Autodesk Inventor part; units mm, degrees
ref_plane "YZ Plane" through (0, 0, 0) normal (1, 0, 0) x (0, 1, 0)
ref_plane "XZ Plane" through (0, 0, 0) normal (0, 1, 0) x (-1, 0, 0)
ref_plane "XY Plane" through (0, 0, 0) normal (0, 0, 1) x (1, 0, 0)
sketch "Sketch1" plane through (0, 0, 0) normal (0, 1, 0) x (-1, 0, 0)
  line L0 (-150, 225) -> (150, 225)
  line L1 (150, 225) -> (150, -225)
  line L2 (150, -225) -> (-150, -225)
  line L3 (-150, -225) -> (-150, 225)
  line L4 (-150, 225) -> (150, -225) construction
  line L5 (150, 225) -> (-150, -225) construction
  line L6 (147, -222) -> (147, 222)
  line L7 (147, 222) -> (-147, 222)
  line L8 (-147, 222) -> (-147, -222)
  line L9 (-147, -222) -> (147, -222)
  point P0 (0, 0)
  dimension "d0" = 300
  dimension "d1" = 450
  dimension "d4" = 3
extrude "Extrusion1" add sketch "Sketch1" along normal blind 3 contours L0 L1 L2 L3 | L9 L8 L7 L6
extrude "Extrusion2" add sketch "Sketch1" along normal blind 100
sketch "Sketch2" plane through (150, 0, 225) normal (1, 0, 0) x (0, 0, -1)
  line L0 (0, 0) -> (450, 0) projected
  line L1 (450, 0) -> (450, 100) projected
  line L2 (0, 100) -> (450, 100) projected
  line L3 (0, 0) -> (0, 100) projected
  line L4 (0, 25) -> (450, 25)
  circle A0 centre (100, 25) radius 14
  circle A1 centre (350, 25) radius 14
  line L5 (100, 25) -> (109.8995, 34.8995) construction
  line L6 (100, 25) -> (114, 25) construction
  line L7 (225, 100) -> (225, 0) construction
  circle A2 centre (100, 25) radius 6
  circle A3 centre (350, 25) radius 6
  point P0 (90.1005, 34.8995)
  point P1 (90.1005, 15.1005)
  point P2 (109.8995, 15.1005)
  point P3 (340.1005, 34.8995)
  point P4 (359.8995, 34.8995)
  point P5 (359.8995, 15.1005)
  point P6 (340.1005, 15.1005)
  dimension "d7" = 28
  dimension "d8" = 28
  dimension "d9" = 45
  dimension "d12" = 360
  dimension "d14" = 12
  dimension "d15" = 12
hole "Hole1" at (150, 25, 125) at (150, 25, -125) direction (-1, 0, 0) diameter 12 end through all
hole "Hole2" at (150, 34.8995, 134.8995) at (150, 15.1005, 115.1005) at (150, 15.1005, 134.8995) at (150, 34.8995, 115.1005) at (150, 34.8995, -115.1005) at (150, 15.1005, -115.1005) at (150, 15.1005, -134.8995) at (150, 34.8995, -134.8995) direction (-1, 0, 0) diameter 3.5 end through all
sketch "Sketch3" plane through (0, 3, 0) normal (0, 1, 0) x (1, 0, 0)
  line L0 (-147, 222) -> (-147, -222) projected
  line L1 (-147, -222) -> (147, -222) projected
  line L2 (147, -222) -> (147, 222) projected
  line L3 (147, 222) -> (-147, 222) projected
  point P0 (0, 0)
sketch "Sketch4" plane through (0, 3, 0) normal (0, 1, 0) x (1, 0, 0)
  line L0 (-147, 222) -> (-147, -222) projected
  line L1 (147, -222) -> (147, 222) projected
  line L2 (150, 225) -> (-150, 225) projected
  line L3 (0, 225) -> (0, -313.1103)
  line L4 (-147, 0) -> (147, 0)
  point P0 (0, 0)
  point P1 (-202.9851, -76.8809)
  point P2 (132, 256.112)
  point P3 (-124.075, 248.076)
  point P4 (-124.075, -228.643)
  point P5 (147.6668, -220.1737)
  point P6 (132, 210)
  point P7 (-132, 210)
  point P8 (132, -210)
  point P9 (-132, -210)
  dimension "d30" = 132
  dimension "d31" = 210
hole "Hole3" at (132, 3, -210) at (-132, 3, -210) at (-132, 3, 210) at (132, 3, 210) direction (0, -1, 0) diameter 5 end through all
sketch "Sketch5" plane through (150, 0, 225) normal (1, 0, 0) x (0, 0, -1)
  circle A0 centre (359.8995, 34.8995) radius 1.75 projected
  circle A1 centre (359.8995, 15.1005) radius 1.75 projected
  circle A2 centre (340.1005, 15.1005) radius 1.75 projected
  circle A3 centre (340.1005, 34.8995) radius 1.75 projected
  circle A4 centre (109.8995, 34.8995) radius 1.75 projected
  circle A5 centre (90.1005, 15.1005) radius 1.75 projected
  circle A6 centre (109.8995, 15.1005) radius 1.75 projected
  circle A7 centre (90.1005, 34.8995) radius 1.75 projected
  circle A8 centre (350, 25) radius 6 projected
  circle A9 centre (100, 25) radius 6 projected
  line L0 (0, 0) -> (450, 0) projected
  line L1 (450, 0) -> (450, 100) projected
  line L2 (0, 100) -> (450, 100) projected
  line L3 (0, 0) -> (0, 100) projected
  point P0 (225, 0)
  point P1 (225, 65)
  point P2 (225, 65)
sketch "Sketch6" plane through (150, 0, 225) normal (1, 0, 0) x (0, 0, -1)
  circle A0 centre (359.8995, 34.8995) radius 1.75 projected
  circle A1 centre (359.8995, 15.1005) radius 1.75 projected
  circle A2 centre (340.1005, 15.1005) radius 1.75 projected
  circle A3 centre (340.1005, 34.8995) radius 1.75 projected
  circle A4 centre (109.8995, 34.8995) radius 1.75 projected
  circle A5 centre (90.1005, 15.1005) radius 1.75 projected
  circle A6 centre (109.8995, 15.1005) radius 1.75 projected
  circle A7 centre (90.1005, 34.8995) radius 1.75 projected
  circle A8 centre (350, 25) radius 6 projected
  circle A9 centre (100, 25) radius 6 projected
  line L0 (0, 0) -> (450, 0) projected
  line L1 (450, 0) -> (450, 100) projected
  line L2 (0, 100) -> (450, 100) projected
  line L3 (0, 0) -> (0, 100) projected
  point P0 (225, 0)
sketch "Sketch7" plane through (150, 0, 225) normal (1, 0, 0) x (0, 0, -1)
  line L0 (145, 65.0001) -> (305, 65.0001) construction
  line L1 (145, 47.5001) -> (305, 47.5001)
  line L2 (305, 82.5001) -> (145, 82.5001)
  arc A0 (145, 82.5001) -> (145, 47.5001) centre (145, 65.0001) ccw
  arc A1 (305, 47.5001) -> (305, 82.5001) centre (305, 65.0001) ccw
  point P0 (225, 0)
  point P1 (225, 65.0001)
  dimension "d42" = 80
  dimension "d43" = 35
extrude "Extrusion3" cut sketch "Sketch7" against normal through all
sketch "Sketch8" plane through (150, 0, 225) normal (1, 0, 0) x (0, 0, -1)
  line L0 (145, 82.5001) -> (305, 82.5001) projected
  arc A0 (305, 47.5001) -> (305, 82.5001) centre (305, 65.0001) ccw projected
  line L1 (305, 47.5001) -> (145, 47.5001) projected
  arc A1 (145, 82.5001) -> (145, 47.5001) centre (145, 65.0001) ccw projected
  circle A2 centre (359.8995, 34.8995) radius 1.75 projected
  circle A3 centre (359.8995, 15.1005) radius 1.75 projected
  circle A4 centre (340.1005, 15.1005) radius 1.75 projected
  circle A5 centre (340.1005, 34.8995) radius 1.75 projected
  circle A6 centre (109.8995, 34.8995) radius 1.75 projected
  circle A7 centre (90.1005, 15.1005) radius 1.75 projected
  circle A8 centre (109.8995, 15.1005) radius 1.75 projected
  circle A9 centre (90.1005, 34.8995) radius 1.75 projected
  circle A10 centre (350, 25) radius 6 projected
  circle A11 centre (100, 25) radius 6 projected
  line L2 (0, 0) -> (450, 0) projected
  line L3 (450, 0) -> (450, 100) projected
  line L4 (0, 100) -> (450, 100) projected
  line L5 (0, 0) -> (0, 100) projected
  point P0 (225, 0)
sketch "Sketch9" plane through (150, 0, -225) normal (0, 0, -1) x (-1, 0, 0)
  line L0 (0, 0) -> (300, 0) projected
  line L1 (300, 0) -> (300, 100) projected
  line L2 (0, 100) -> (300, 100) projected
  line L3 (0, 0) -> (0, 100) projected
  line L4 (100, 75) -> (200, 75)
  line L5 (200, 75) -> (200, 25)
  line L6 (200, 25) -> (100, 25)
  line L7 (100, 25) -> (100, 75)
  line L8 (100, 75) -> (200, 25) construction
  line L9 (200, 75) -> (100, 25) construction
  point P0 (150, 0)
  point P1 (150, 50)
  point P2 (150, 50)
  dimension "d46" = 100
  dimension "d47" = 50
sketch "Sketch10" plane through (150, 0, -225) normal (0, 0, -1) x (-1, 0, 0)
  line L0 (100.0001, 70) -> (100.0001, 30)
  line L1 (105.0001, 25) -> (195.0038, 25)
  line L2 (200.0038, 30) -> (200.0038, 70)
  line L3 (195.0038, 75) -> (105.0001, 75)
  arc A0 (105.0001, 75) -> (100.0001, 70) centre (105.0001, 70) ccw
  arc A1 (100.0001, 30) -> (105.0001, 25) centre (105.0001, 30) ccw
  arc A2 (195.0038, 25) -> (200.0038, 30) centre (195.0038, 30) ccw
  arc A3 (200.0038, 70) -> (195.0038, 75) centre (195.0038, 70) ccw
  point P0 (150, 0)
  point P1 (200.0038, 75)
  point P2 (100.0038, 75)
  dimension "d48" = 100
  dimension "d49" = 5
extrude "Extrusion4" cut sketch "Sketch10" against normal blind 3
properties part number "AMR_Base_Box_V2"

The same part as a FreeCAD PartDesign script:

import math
import FreeCAD as App
import Part
import Sketcher

V = App.Vector

doc = App.newDocument("Part")
body = doc.addObject("PartDesign::Body", "Body")

# Sketch on XZ plane
sketch1 = body.newObject("Sketcher::SketchObject", "Sketch")
sketch1.AttachmentSupport = (doc.getObject("XZ_Plane"), [""])
sketch1.MapMode = "FlatFace"
sketch1.addGeometry([
    Part.LineSegment(V(-150, 225, 0), V(150, 225, 0)),
    Part.LineSegment(V(150, 225, 0), V(150, -225, 0)),
    Part.LineSegment(V(150, -225, 0), V(-150, -225, 0)),
    Part.LineSegment(V(-150, -225, 0), V(-150, 225, 0)),
], False)
sketch1.addConstraint([
    Sketcher.Constraint("Coincident", 0, 2, 1, 1),
    Sketcher.Constraint("Coincident", 1, 2, 2, 1),
    Sketcher.Constraint("Coincident", 2, 2, 3, 1),
    Sketcher.Constraint("Coincident", 3, 2, 0, 1),
    Sketcher.Constraint("Horizontal", 0),
    Sketcher.Constraint("Vertical", 1),
    Sketcher.Constraint("Horizontal", 2),
    Sketcher.Constraint("Vertical", 3),
    Sketcher.Constraint("Symmetric", 0, 2, 2, 2, -1, 1),
    Sketcher.Constraint("DistanceX", 0, 1, 0, 2, 300.0),
    Sketcher.Constraint("DistanceY", 1, 2, 1, 1, 450.0),
])
pad1 = body.newObject("PartDesign::Pad", "Pad")
pad1.Profile = sketch1
pad1.Length = 3
pad1.Reversed = True

# Sketch on XZ plane
sketch2 = body.newObject("Sketcher::SketchObject", "Sketch001")
sketch2.AttachmentSupport = (doc.getObject("XZ_Plane"), [""])
sketch2.MapMode = "FlatFace"
sketch2.addGeometry([
    Part.LineSegment(V(-150, 225, 0), V(150, 225, 0)),  # 0
    Part.LineSegment(V(150, 225, 0), V(150, -225, 0)),  # 1
    Part.LineSegment(V(150, -225, 0), V(-150, -225, 0)),  # 2
    Part.LineSegment(V(-150, -225, 0), V(-150, 225, 0)),  # 3
    Part.LineSegment(V(-147, 222, 0), V(-147, -222, 0)),  # 4
    Part.LineSegment(V(-147, -222, 0), V(147, -222, 0)),  # 5
    Part.LineSegment(V(147, -222, 0), V(147, 222, 0)),  # 6
    Part.LineSegment(V(147, 222, 0), V(-147, 222, 0)),  # 7
], False)
sketch2.addConstraint([
    Sketcher.Constraint("Coincident", 0, 2, 1, 1),
    Sketcher.Constraint("Coincident", 1, 2, 2, 1),
    Sketcher.Constraint("Coincident", 2, 2, 3, 1),
    Sketcher.Constraint("Coincident", 3, 2, 0, 1),
    Sketcher.Constraint("Coincident", 4, 2, 5, 1),
    Sketcher.Constraint("Coincident", 5, 2, 6, 1),
    Sketcher.Constraint("Coincident", 6, 2, 7, 1),
    Sketcher.Constraint("Coincident", 7, 2, 4, 1),
    Sketcher.Constraint("Horizontal", 0),
    Sketcher.Constraint("Vertical", 1),
    Sketcher.Constraint("Horizontal", 2),
    Sketcher.Constraint("Vertical", 3),
    Sketcher.Constraint("Vertical", 4),
    Sketcher.Constraint("Horizontal", 5),
    Sketcher.Constraint("Vertical", 6),
    Sketcher.Constraint("Horizontal", 7),
    Sketcher.Constraint("Symmetric", 0, 2, 2, 2, -1, 1),
    Sketcher.Constraint("Symmetric", 4, 2, 6, 2, -1, 1),
    Sketcher.Constraint("DistanceX", 0, 1, 0, 2, 300.0),
    Sketcher.Constraint("DistanceY", 1, 2, 1, 1, 450.0),
    Sketcher.Constraint("DistanceX", 2, 2, 4, 2, 3.0),
    Sketcher.Constraint("DistanceY", 2, 2, 4, 2, 3.0),
])
pad2 = body.newObject("PartDesign::Pad", "Pad001")
pad2.Profile = sketch2
pad2.Length = 100
pad2.Reversed = True

# Sketch on YZ plane
sketch3 = body.newObject("Sketcher::SketchObject", "Sketch002")
sketch3.AttachmentSupport = (doc.getObject("YZ_Plane"), [""])
sketch3.MapMode = "FlatFace"
sketch3.AttachmentOffset = App.Placement(V(0, 0, 150), App.Rotation())
sketch3.addGeometry([
    Part.Circle(V(25, 125, 0), V(0, 0, 1), 6),
    Part.Circle(V(25, -125, 0), V(0, 0, 1), 6),
], False)
sketch3.addConstraint([
    Sketcher.Constraint("Equal", 0, 1),
    Sketcher.Constraint("Symmetric", 0, 3, 1, 3, -1),
    Sketcher.Constraint("Diameter", 0, 12.0),
    Sketcher.Constraint("DistanceX", -1, 1, 0, 3, 25.0),
    Sketcher.Constraint("DistanceY", -1, 1, 0, 3, 125.0),
])
doc.recompute()
hole = body.newObject("PartDesign::Hole", "Hole")
hole.Profile = sketch3
hole.ThreadType = "None"
hole.Diameter = 12
hole.DepthType = "ThroughAll"

# Sketch on YZ plane
sketch4 = body.newObject("Sketcher::SketchObject", "Sketch003")
sketch4.AttachmentSupport = (doc.getObject("YZ_Plane"), [""])
sketch4.MapMode = "FlatFace"
sketch4.AttachmentOffset = App.Placement(V(0, 0, 150), App.Rotation())
sketch4.addGeometry([
    Part.Circle(V(34.9, 134.9, 0), V(0, 0, 1), 1.8),  # 0
    Part.Circle(V(15.1, 115.1, 0), V(0, 0, 1), 1.8),  # 1
    Part.Circle(V(15.1, 134.9, 0), V(0, 0, 1), 1.8),  # 2
    Part.Circle(V(34.9, 115.1, 0), V(0, 0, 1), 1.8),  # 3
    Part.Circle(V(34.9, -115.1, 0), V(0, 0, 1), 1.8),  # 4
    Part.Circle(V(15.1, -115.1, 0), V(0, 0, 1), 1.8),  # 5
    Part.Circle(V(15.1, -134.9, 0), V(0, 0, 1), 1.8),  # 6
    Part.Circle(V(34.9, -134.9, 0), V(0, 0, 1), 1.8),  # 7
], False)
sketch4.addConstraint([
    Sketcher.Constraint("Equal", 0, 1),
    Sketcher.Constraint("Equal", 1, 2),
    Sketcher.Constraint("Equal", 2, 3),
    Sketcher.Constraint("Equal", 3, 4),
    Sketcher.Constraint("Equal", 4, 5),
    Sketcher.Constraint("Equal", 5, 6),
    Sketcher.Constraint("Equal", 6, 7),
    Sketcher.Constraint("Symmetric", 3, 3, 4, 3, -1),
    Sketcher.Constraint("Symmetric", 1, 3, 5, 3, -1),
    Sketcher.Constraint("Symmetric", 2, 3, 6, 3, -1),
    Sketcher.Constraint("Symmetric", 0, 3, 7, 3, -1),
    Sketcher.Constraint("Horizontal", 0, 3, 2, 3),
    Sketcher.Constraint("Horizontal", 1, 3, 3, 3),
    Sketcher.Constraint("Vertical", 1, 3, 2, 3),
    Sketcher.Constraint("Vertical", 0, 3, 3, 3),
    Sketcher.Constraint("Diameter", 0, 3.5),
    Sketcher.Constraint("DistanceY", 4, 3, 0, 3, 250.0),
    Sketcher.Constraint("DistanceX", 1, 3, 0, 3, 19.799),
    Sketcher.Constraint("DistanceY", 1, 3, 0, 3, 19.799),
    Sketcher.Constraint("DistanceX", -1, 1, 0, 3, 34.8995),
])
doc.recompute()
hole2 = body.newObject("PartDesign::Hole", "Hole001")
hole2.Profile = sketch4
hole2.ThreadType = "None"
hole2.Diameter = 3.5
hole2.DepthType = "ThroughAll"

# Sketch on XZ plane
sketch5 = body.newObject("Sketcher::SketchObject", "Sketch004")
sketch5.AttachmentSupport = (doc.getObject("XZ_Plane"), [""])
sketch5.MapMode = "FlatFace"
sketch5.AttachmentOffset = App.Placement(V(0, 0, -3), App.Rotation())
sketch5.addGeometry([
    Part.Circle(V(132, -210, 0), V(0, 0, 1), 2.5),
    Part.Circle(V(-132, -210, 0), V(0, 0, 1), 2.5),
    Part.Circle(V(-132, 210, 0), V(0, 0, 1), 2.5),
    Part.Circle(V(132, 210, 0), V(0, 0, 1), 2.5),
], False)
sketch5.addConstraint([
    Sketcher.Constraint("Equal", 0, 1),
    Sketcher.Constraint("Equal", 1, 2),
    Sketcher.Constraint("Equal", 2, 3),
    Sketcher.Constraint("Symmetric", 0, 3, 2, 3, -1, 1),
    Sketcher.Constraint("Symmetric", 1, 3, 3, 3, -1, 1),
    Sketcher.Constraint("Symmetric", 0, 3, 1, 3, -2),
    Sketcher.Constraint("Diameter", 0, 5.0),
    Sketcher.Constraint("DistanceX", -1, 1, 0, 3, 132.0),
    Sketcher.Constraint("DistanceY", 0, 3, -1, 1, 210.0),
])
doc.recompute()
hole3 = body.newObject("PartDesign::Hole", "Hole002")
hole3.Profile = sketch5
hole3.ThreadType = "None"
hole3.Diameter = 5
hole3.DepthType = "ThroughAll"
hole3.Reversed = True

# Sketch on YZ plane
sketch6 = body.newObject("Sketcher::SketchObject", "Sketch005")
sketch6.AttachmentSupport = (doc.getObject("YZ_Plane"), [""])
sketch6.MapMode = "FlatFace"
sketch6.AttachmentOffset = App.Placement(V(0, 0, 150), App.Rotation())
sketch6.addGeometry([
    Part.ArcOfCircle(Part.Circle(V(65, 80, 0), V(0, 0, 1), 18), math.radians(0), math.radians(180)),
    Part.LineSegment(V(48, 80, 0), V(48, -80, 0)),
    Part.ArcOfCircle(Part.Circle(V(65, -80, 0), V(0, 0, 1), 18), math.radians(180), math.radians(360)),
    Part.LineSegment(V(83, -80, 0), V(83, 80, 0)),
], False)
sketch6.addConstraint([
    Sketcher.Constraint("Tangent", 0, 2, 1, 1),
    Sketcher.Constraint("Tangent", 1, 2, 2, 1),
    Sketcher.Constraint("Tangent", 2, 2, 3, 1),
    Sketcher.Constraint("Tangent", 3, 2, 0, 1),
    Sketcher.Constraint("Vertical", 1),
    Sketcher.Constraint("Vertical", 3),
    Sketcher.Constraint("Radius", 0, 17.5),
    Sketcher.Constraint("DistanceY", -1, 1, 0, 3, 80.0),
    Sketcher.Constraint("DistanceY", 2, 3, -1, 1, 80.0),
    Sketcher.Constraint("DistanceX", -1, 1, 0, 3, 65.0),
])
pocket1 = body.newObject("PartDesign::Pocket", "Pocket")
pocket1.Profile = sketch6
pocket1.Type = "ThroughAll"

# Sketch on XY plane
sketch7 = body.newObject("Sketcher::SketchObject", "Sketch006")
sketch7.AttachmentSupport = (doc.getObject("XY_Plane"), [""])
sketch7.MapMode = "FlatFace"
sketch7.AttachmentOffset = App.Placement(V(0, 0, -225), App.Rotation())
sketch7.addGeometry([
    Part.ArcOfCircle(Part.Circle(V(45, 70, 0), V(0, 0, 1), 5), math.radians(0), math.radians(90)),  # 0
    Part.LineSegment(V(50, 70, 0), V(50, 30, 0)),  # 1
    Part.ArcOfCircle(Part.Circle(V(45, 30, 0), V(0, 0, 1), 5), math.radians(-90), math.radians(0)),  # 2
    Part.LineSegment(V(45, 25, 0), V(-45, 25, 0)),  # 3
    Part.ArcOfCircle(Part.Circle(V(-45, 30, 0), V(0, 0, 1), 5), math.radians(180), math.radians(270)),  # 4
    Part.LineSegment(V(-50, 30, 0), V(-50, 70, 0)),  # 5
    Part.ArcOfCircle(Part.Circle(V(-45, 70, 0), V(0, 0, 1), 5), math.radians(90), math.radians(180)),  # 6
    Part.LineSegment(V(-45, 75, 0), V(45, 75, 0)),  # 7
], False)
sketch7.addConstraint([
    Sketcher.Constraint("Tangent", 0, 1, 1, 1),
    Sketcher.Constraint("Tangent", 1, 2, 2, 2),
    Sketcher.Constraint("Tangent", 2, 1, 3, 1),
    Sketcher.Constraint("Tangent", 3, 2, 4, 2),
    Sketcher.Constraint("Tangent", 4, 1, 5, 1),
    Sketcher.Constraint("Tangent", 5, 2, 6, 2),
    Sketcher.Constraint("Tangent", 6, 1, 7, 1),
    Sketcher.Constraint("Tangent", 7, 2, 0, 2),
    Sketcher.Constraint("Vertical", 1),
    Sketcher.Constraint("Horizontal", 3),
    Sketcher.Constraint("Vertical", 5),
    Sketcher.Constraint("Horizontal", 7),
    Sketcher.Constraint("Equal", 0, 2),
    Sketcher.Constraint("Equal", 2, 4),
    Sketcher.Constraint("Equal", 4, 6),
    Sketcher.Constraint("Radius", 0, 5.0),
    Sketcher.Constraint("DistanceY", 1, 2, 1, 1, 40.0),
    Sketcher.Constraint("DistanceX", -1, 1, 0, 3, 45.0),
    Sketcher.Constraint("DistanceY", -1, 1, 0, 3, 70.0),
    Sketcher.Constraint("DistanceX", 3, 2, 3, 1, 90.0037),
])
pocket2 = body.newObject("PartDesign::Pocket", "Pocket001")
pocket2.Profile = sketch7
pocket2.Length = 3
pocket2.Reversed = True

doc.recompute()
